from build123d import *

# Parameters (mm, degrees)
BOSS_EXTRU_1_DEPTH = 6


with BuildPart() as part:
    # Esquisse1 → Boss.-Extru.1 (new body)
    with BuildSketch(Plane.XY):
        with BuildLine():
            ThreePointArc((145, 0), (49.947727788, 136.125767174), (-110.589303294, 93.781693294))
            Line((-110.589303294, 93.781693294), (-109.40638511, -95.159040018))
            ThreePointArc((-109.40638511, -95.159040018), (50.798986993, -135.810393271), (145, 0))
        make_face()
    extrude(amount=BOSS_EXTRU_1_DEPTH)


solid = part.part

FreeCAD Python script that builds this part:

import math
import FreeCAD as App
import Part
import Sketcher

V = App.Vector
Q = App.Units.Quantity

doc = App.newDocument("Part")
params = doc.addObject("Spreadsheet::Sheet", "Params")
for row, (alias, value) in enumerate([
    ("sketch1_radius", "145 mm"),
    ("pad1_length", "6 mm"),
], start=1):
    params.set(f"A{row}", alias)
    params.set(f"B{row}", "=" + value)
    params.setAlias(f"B{row}", alias)

body = doc.addObject("PartDesign::Body", "Body")

# Sketch on XY plane
sketch1 = body.newObject("Sketcher::SketchObject", "Sketch")
sketch1.AttachmentSupport = (doc.getObject("XY_Plane"), [""])
sketch1.MapMode = "FlatFace"
sketch1.addGeometry(Part.ArcOfCircle(Part.Circle(V(0, 0, 0), V(0, 0, 1), 145), math.radians(0), math.radians(140)), False)
sketch1.addGeometry(Part.LineSegment(V(-111, 94, 0), V(-109, -95, 0)), False)
sketch1.addGeometry(Part.ArcOfCircle(Part.Circle(V(0, 0, 0), V(0, 0, 1), 145), math.radians(-139), math.radians(0)), False)
sketch1.addConstraint(Sketcher.Constraint("Coincident", 0, 2, 1, 1))
sketch1.addConstraint(Sketcher.Constraint("Coincident", 1, 2, 2, 1))
sketch1.addConstraint(Sketcher.Constraint("Tangent", 2, 2, 0, 1))
sketch1.addConstraint(Sketcher.Constraint("Coincident", 0, 3, -1, 1))
sketch1.addConstraint(Sketcher.Constraint("Equal", 0, 2))
sketch1.addConstraint(Sketcher.Constraint("PointOnObject", 2, 2, -1))
sketch1.addConstraint(Sketcher.Constraint("Radius", 0, Q("145 mm")))
sketch1.addConstraint(Sketcher.Constraint("DistanceY", 1, 2, -1, 1, Q("95.15904 mm")))
sketch1.addConstraint(Sketcher.Constraint("DistanceX", 0, 2, 1, 2, Q("1.182918 mm")))
sketch1.setExpression("Constraints[6]", "Params.sketch1_radius")
pad1 = body.newObject("PartDesign::Pad", "Pad")
pad1.Profile = sketch1
pad1.setExpression("Length", "Params.pad1_length")

doc.recompute()
